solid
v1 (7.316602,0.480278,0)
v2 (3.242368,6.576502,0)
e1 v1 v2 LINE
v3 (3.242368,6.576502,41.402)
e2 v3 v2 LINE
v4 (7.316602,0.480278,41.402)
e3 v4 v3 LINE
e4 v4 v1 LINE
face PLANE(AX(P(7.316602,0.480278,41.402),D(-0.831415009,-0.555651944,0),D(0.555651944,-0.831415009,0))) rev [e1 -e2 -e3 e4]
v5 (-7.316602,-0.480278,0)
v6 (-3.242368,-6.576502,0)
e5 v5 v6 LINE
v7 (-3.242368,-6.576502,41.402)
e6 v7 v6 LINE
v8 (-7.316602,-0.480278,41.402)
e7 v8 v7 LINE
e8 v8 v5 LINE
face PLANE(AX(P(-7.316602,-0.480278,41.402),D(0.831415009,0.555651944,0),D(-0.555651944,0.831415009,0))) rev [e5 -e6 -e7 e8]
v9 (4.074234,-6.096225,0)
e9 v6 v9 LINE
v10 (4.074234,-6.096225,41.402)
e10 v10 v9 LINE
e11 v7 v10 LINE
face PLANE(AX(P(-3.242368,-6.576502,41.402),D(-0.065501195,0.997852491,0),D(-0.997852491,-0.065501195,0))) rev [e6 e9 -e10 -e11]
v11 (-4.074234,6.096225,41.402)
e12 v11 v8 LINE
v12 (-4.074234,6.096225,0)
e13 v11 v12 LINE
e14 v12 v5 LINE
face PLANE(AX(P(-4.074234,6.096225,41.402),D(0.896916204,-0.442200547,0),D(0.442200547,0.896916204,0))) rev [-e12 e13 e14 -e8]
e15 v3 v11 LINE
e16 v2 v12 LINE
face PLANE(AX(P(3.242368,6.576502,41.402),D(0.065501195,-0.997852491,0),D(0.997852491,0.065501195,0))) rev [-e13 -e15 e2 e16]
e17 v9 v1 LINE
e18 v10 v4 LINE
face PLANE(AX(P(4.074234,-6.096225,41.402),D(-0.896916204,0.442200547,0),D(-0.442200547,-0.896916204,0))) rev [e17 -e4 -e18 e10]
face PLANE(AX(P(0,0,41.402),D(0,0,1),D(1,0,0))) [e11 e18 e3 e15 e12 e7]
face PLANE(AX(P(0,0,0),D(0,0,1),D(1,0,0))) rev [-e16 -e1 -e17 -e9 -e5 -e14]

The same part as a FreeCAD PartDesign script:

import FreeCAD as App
import Part
import Sketcher
from FreeCAD import Vector
Q = App.Units.Quantity

doc = App.newDocument("Part")
body = doc.addObject("PartDesign::Body", "Body")

# Sketch on XY plane
sketch1 = body.newObject("Sketcher::SketchObject", "Sketch")
sketch1.AttachmentSupport = (doc.getObject("XY_Plane"), [""])
sketch1.MapMode = "FlatFace"
sketch1.addGeometry(Part.LineSegment(Vector(3.242368, 6.576502, 0), Vector(-4.074234, 6.096225, 0)), False)
sketch1.addGeometry(Part.LineSegment(Vector(-4.074234, 6.096225, 0), Vector(-7.316602, -0.480278, 0)), False)
sketch1.addGeometry(Part.LineSegment(Vector(-7.316602, -0.480278, 0), Vector(-3.242368, -6.576502, 0)), False)
sketch1.addGeometry(Part.LineSegment(Vector(-3.242368, -6.576502, 0), Vector(4.074234, -6.096225, 0)), False)
sketch1.addGeometry(Part.LineSegment(Vector(4.074234, -6.096225, 0), Vector(7.316602, 0.480278, 0)), False)
sketch1.addGeometry(Part.LineSegment(Vector(7.316602, 0.480278, 0), Vector(3.242368, 6.576502, 0)), False)
sketch1.addConstraint(Sketcher.Constraint("Coincident", 0, 2, 1, 1))
sketch1.addConstraint(Sketcher.Constraint("Coincident", 1, 2, 2, 1))
sketch1.addConstraint(Sketcher.Constraint("Coincident", 2, 2, 3, 1))
sketch1.addConstraint(Sketcher.Constraint("Coincident", 3, 2, 4, 1))
sketch1.addConstraint(Sketcher.Constraint("Coincident", 4, 2, 5, 1))
sketch1.addConstraint(Sketcher.Constraint("Coincident", 5, 2, 0, 1))
sketch1.addConstraint(Sketcher.Constraint("Symmetric", 0, 2, 3, 2, -1, 1))
sketch1.addConstraint(Sketcher.Constraint("Symmetric", 1, 2, 4, 2, -1, 1))
sketch1.addConstraint(Sketcher.Constraint("Symmetric", 2, 2, 5, 2, -1, 1))
sketch1.addConstraint(Sketcher.Constraint("Equal", 0, 1))
sketch1.addConstraint(Sketcher.Constraint("Equal", 1, 2))
sketch1.addConstraint(Sketcher.Constraint("Distance", 0, Q("7.332348 mm")))
sketch1.addConstraint(Sketcher.Constraint("DistanceX", 2, 2, -1, 1, Q("3.242368 mm")))
sketch1.addConstraint(Sketcher.Constraint("DistanceX", 1, 2, 0, 2, Q("3.242368 mm")))
sketch1.addConstraint(Sketcher.Constraint("DistanceY", 3, 2, 0, 2, Q("12.192449 mm")))
pad1 = body.newObject("PartDesign::Pad", "Pad")
pad1.Profile = sketch1
pad1.Length = Q("1.63 in")

doc.recompute()
